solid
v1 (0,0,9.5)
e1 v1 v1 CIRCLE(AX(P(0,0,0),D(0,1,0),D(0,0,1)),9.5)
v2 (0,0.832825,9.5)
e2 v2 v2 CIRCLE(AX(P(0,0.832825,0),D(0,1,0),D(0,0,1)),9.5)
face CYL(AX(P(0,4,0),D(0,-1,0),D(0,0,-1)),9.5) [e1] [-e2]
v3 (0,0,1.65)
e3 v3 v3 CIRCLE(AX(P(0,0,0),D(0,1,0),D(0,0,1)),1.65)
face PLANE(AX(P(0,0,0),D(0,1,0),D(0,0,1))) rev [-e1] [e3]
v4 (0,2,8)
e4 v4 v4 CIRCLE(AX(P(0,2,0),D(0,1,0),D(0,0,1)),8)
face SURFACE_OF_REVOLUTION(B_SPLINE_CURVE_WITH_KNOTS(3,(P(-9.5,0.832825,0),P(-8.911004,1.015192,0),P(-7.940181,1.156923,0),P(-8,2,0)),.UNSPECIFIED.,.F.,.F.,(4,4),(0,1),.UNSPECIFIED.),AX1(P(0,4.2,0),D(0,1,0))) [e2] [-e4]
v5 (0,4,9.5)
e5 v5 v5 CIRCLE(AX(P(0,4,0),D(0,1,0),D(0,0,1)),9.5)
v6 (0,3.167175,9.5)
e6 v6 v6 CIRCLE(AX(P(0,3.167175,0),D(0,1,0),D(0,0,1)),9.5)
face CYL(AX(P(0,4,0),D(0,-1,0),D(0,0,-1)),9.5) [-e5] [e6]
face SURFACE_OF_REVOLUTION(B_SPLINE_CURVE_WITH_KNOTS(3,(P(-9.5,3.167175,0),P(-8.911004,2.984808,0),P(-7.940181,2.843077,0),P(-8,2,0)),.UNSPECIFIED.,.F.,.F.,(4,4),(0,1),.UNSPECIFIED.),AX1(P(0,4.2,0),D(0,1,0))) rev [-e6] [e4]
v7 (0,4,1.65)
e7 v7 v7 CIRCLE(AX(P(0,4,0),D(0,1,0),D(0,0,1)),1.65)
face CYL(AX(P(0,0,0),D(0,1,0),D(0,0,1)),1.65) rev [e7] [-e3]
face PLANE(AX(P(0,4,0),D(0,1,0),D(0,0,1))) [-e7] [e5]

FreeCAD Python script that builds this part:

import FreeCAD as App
import Part
import Sketcher

V = App.Vector
Q = App.Units.Quantity

doc = App.newDocument("Part")
body = doc.addObject("PartDesign::Body", "Body")

sketch1 = doc.addObject("Sketcher::SketchObject", "Sketch")
body.addObject(sketch1)
sketch1.AttachmentSupport = (doc.XZ_Plane, [""])
sketch1.MapMode = "FlatFace"
sketch1.addGeometry(Part.Circle(V(0, 0, 0), V(0, 0, 1), 9.5), False)
sketch1.addConstraint([
    Sketcher.Constraint("Coincident", 0, 3, -1, 1),
    Sketcher.Constraint("Diameter", 0, Q("19 mm")),
])
pad1 = doc.addObject("PartDesign::Pad", "Pad")
body.addObject(pad1)
pad1.Profile = sketch1
pad1.Length = 4
pad1.Reversed = True

sketch2 = doc.addObject("Sketcher::SketchObject", "Sketch001")
body.addObject(sketch2)
sketch2.AttachmentSupport = (doc.XY_Plane, [""])
sketch2.MapMode = "FlatFace"
sketch2.addGeometry([
    Part.LineSegment(V(-9.5, 3.167175, 0), V(-9.5, 0.832825, 0)),
    Part.BSplineCurve([V(-9.5, 0.832825, 0), V(-8.911004, 1.015192, 0), V(-7.940181, 1.156923, 0), V(-8, 2, 0)], [4, 4], [0, 1], False, 3, [1, 1, 1, 1], False),
    Part.BSplineCurve([V(-9.5, 3.167175, 0), V(-8.911004, 2.984808, 0), V(-7.940181, 2.843077, 0), V(-8, 2, 0)], [4, 4], [0, 1], False, 3, [1, 1, 1, 1], False),
], False)
sketch2.addConstraint([
    Sketcher.Constraint("Block", 1),
    Sketcher.Constraint("Block", 2),
    Sketcher.Constraint("Coincident", 0, 2, 1, 1),
    Sketcher.Constraint("Coincident", 2, 1, 0, 1),
])
groove = doc.addObject("PartDesign::Groove", "Groove")
body.addObject(groove)
groove.Profile = sketch2
groove.ReferenceAxis = (sketch2, ["V_Axis"])
groove.Angle = 360

sketch3 = doc.addObject("Sketcher::SketchObject", "Sketch002")
body.addObject(sketch3)
sketch3.AttachmentSupport = (doc.XZ_Plane, [""])
sketch3.MapMode = "FlatFace"
sketch3.AttachmentOffset = App.Placement(V(0, 0, -4), App.Rotation())
sketch3.addGeometry(Part.Circle(V(0, 0, 0), V(0, 0, 1), 1.65), False)
sketch3.addConstraint([
    Sketcher.Constraint("Coincident", 0, 3, -1, 1),
    Sketcher.Constraint("Diameter", 0, Q("3.3 mm")),
])
pocket1 = doc.addObject("PartDesign::Pocket", "Pocket")
body.addObject(pocket1)
pocket1.Profile = sketch3
pocket1.Type = "ThroughAll"
pocket1.Reversed = True

doc.recompute()
